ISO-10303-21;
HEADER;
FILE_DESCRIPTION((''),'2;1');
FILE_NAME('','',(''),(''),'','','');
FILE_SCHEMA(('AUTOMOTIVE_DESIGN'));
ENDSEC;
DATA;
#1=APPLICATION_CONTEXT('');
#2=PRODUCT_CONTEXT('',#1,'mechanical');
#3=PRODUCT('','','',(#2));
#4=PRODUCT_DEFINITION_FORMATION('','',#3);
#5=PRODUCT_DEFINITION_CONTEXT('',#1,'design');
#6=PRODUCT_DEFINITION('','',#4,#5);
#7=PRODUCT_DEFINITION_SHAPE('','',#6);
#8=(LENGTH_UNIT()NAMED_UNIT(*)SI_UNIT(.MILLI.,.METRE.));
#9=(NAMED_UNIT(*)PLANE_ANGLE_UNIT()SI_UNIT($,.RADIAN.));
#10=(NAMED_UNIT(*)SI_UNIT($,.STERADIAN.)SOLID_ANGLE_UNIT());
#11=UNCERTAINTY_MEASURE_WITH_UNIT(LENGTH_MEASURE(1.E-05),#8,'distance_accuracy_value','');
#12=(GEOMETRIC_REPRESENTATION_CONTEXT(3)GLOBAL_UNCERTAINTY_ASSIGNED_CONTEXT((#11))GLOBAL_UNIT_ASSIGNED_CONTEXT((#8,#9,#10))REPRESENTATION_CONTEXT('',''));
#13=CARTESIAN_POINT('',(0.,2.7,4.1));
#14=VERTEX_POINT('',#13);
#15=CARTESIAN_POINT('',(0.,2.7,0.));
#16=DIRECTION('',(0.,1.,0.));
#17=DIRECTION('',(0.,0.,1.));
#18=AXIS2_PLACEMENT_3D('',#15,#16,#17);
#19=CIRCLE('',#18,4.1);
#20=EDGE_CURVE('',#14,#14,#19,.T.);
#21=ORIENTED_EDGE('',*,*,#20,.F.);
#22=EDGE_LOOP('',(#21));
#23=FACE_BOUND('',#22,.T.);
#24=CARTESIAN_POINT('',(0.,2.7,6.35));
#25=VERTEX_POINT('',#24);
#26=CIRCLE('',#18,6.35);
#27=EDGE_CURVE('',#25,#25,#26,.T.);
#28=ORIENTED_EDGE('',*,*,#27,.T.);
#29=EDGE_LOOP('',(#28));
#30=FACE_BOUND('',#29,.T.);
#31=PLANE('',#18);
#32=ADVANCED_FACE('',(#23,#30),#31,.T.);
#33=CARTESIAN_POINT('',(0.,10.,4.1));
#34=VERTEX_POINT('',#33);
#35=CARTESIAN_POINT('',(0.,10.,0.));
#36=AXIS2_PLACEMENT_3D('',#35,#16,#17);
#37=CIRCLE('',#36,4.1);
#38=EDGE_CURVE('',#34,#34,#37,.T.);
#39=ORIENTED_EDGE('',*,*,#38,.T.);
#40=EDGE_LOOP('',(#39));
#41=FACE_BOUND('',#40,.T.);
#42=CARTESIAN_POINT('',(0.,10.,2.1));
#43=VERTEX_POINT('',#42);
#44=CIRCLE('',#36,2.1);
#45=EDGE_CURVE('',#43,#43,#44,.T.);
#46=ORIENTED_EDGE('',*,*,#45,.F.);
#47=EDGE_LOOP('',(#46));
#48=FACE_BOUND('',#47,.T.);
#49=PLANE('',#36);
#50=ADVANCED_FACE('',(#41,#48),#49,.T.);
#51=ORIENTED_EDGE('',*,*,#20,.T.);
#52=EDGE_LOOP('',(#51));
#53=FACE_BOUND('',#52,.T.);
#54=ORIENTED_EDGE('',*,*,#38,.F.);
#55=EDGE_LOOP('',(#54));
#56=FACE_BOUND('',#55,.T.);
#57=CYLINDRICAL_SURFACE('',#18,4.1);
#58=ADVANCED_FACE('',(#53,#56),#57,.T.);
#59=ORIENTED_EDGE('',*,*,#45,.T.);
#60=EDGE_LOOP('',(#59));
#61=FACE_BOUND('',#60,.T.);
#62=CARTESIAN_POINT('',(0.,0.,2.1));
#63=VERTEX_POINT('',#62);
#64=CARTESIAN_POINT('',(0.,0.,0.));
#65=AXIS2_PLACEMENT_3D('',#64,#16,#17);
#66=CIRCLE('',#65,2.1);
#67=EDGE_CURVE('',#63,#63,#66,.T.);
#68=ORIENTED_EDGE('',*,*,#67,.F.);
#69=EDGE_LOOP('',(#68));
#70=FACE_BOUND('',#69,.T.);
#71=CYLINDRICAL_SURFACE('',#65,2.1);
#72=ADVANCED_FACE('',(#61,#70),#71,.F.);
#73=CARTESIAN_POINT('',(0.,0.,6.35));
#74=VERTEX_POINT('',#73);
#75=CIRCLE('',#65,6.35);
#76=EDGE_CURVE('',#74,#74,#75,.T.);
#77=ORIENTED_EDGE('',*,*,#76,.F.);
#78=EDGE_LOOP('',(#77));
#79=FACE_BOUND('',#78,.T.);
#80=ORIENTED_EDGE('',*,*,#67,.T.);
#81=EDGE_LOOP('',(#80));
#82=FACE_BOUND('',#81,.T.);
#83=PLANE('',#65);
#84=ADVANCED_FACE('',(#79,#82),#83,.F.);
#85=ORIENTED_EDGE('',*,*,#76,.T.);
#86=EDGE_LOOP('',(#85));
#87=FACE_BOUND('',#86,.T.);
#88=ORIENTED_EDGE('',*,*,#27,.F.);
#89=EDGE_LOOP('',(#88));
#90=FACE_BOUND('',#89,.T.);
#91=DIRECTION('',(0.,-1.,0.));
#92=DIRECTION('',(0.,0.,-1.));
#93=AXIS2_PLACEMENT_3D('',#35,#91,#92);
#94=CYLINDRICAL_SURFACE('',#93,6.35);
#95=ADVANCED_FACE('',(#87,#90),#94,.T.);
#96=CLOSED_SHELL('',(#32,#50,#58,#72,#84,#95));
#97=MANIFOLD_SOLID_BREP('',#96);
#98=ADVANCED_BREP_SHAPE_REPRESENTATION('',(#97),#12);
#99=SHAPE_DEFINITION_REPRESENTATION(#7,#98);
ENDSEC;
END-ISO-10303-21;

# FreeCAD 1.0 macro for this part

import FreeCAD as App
import Part
import Sketcher
from FreeCAD import Vector

doc = App.newDocument("Part")
body = doc.addObject("PartDesign::Body", "Body")

# Sketch on XZ plane
sketch1 = body.newObject("Sketcher::SketchObject", "Sketch")
sketch1.AttachmentSupport = (doc.getObject("XZ_Plane"), [""])
sketch1.MapMode = "FlatFace"
sketch1.addGeometry(Part.Circle(Vector(0, 0, 0), Vector(0, 0, 1), 6.35), False)
sketch1.addConstraint([
    Sketcher.Constraint("Coincident", 0, 3, -1, 1),
    Sketcher.Constraint("Diameter", 0, 12.7),
])
pad1 = body.newObject("PartDesign::Pad", "Pad")
pad1.Profile = sketch1
pad1.Length = 10
pad1.Reversed = True

# Sketch on XZ plane
sketch2 = body.newObject("Sketcher::SketchObject", "Sketch001")
sketch2.AttachmentSupport = (doc.getObject("XZ_Plane"), [""])
sketch2.MapMode = "FlatFace"
sketch2.AttachmentOffset = App.Placement(Vector(0, 0, -10), App.Rotation())
sketch2.addGeometry(Part.Circle(Vector(0, 0, 0), Vector(0, 0, 1), 2.1), False)
sketch2.addConstraint([
    Sketcher.Constraint("Coincident", 0, 3, -1, 1),
    Sketcher.Constraint("Diameter", 0, 4.2),
])
pocket1 = body.newObject("PartDesign::Pocket", "Pocket")
pocket1.Profile = sketch2
pocket1.Type = "ThroughAll"
pocket1.Reversed = True

# Sketch on XZ plane
sketch3 = body.newObject("Sketcher::SketchObject", "Sketch002")
sketch3.AttachmentSupport = (doc.getObject("XZ_Plane"), [""])
sketch3.MapMode = "FlatFace"
sketch3.AttachmentOffset = App.Placement(Vector(0, 0, -10), App.Rotation())
sketch3.addGeometry([
    Part.LineSegment(Vector(-9.406, -9.406, 0), Vector(-9.406, 9.406, 0)),  # 0
    Part.LineSegment(Vector(-9.406, 9.406, 0), Vector(9.406, 9.406, 0)),  # 1
    Part.LineSegment(Vector(9.406, 9.406, 0), Vector(9.406, -9.406, 0)),  # 2
    Part.LineSegment(Vector(9.406, -9.406, 0), Vector(-9.406, -9.406, 0)),  # 3
    Part.Circle(Vector(0, 0, 0), Vector(0, 0, 1), 4.1),  # 4
], False)
sketch3.addConstraint([
    Sketcher.Constraint("Coincident", 0, 2, 1, 1),
    Sketcher.Constraint("Coincident", 1, 2, 2, 1),
    Sketcher.Constraint("Coincident", 2, 2, 3, 1),
    Sketcher.Constraint("Coincident", 3, 2, 0, 1),
    Sketcher.Constraint("Vertical", 0),
    Sketcher.Constraint("Horizontal", 1),
    Sketcher.Constraint("Vertical", 2),
    Sketcher.Constraint("Horizontal", 3),
    Sketcher.Constraint("Coincident", 4, 3, -1, 1),
    Sketcher.Constraint("Symmetric", 0, 2, 2, 2, -1, 1),
    Sketcher.Constraint("Equal", 3, 0),
    Sketcher.Constraint("Diameter", 4, 8.2),
    Sketcher.Constraint("DistanceX", 1, 1, 1, 2, 18.812),
])
pocket2 = body.newObject("PartDesign::Pocket", "Pocket001")
pocket2.Profile = sketch3
pocket2.Length = 7.3
pocket2.Reversed = True

doc.recompute()
